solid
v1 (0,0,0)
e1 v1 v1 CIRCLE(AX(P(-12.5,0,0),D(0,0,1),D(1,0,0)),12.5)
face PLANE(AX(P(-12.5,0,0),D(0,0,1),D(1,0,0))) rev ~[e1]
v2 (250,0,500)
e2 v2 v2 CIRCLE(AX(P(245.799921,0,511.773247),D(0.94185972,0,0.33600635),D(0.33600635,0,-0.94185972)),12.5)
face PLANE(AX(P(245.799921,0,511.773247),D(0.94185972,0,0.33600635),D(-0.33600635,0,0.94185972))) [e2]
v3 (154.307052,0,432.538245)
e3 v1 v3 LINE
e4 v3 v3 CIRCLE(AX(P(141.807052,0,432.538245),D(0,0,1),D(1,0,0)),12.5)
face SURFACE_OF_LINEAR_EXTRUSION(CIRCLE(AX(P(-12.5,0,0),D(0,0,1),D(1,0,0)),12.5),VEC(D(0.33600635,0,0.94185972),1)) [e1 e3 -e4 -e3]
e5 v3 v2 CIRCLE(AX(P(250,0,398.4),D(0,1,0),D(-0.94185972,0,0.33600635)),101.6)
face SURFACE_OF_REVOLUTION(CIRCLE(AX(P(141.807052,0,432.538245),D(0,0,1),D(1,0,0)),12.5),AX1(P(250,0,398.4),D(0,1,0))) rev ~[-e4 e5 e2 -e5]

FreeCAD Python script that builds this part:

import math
import FreeCAD as App
import Part
import Sketcher
from FreeCAD import Vector
Q = App.Units.Quantity

doc = App.newDocument("Part")
body = doc.addObject("PartDesign::Body", "Body")

# Sketch on XY plane
sketch1 = body.newObject("Sketcher::SketchObject", "Sketch")
sketch1.AttachmentSupport = (doc.getObject("XY_Plane"), [""])
sketch1.MapMode = "FlatFace"
sketch1.addGeometry(Part.Circle(Vector(-12, 0, 0), Vector(0, 0, 1), 12), False)
sketch1.addConstraint([
    Sketcher.Constraint("PointOnObject", 0, 3, -1),
    Sketcher.Constraint("Diameter", 0, Q("25 mm")),
    Sketcher.Constraint("DistanceX", 0, 3, -1, 1, Q("12.5 mm")),
])

# Sketch on XZ plane
sketch2 = body.newObject("Sketcher::SketchObject", "Sketch001")
sketch2.AttachmentSupport = (doc.getObject("XZ_Plane"), [""])
sketch2.MapMode = "FlatFace"
sketch2.addGeometry([
    Part.LineSegment(Vector(0, 0, 0), Vector(154, 433, 0)),
    Part.ArcOfCircle(Part.Circle(Vector(250, 398, 0), Vector(0, 0, 1), 102), math.radians(90), math.radians(160)),
], False)
sketch2.addConstraint([
    Sketcher.Constraint("Tangent", 0, 2, 1, 2),
    Sketcher.Constraint("Coincident", 0, 1, -1, 1),
    Sketcher.Constraint("Radius", 1, Q("101.6 mm")),
    Sketcher.Constraint("DistanceX", -1, 1, 1, 3, Q("250 mm")),
    Sketcher.Constraint("DistanceX", -1, 1, 1, 1, Q("250 mm")),
    Sketcher.Constraint("DistanceY", -1, 1, 1, 1, Q("500 mm")),
])
doc.recompute()

additivepipe = body.newObject("PartDesign::AdditivePipe", "AdditivePipe")
additivepipe.Profile = sketch1
additivepipe.Spine = (sketch2, ["Edge1", "Edge2"])

doc.recompute()
